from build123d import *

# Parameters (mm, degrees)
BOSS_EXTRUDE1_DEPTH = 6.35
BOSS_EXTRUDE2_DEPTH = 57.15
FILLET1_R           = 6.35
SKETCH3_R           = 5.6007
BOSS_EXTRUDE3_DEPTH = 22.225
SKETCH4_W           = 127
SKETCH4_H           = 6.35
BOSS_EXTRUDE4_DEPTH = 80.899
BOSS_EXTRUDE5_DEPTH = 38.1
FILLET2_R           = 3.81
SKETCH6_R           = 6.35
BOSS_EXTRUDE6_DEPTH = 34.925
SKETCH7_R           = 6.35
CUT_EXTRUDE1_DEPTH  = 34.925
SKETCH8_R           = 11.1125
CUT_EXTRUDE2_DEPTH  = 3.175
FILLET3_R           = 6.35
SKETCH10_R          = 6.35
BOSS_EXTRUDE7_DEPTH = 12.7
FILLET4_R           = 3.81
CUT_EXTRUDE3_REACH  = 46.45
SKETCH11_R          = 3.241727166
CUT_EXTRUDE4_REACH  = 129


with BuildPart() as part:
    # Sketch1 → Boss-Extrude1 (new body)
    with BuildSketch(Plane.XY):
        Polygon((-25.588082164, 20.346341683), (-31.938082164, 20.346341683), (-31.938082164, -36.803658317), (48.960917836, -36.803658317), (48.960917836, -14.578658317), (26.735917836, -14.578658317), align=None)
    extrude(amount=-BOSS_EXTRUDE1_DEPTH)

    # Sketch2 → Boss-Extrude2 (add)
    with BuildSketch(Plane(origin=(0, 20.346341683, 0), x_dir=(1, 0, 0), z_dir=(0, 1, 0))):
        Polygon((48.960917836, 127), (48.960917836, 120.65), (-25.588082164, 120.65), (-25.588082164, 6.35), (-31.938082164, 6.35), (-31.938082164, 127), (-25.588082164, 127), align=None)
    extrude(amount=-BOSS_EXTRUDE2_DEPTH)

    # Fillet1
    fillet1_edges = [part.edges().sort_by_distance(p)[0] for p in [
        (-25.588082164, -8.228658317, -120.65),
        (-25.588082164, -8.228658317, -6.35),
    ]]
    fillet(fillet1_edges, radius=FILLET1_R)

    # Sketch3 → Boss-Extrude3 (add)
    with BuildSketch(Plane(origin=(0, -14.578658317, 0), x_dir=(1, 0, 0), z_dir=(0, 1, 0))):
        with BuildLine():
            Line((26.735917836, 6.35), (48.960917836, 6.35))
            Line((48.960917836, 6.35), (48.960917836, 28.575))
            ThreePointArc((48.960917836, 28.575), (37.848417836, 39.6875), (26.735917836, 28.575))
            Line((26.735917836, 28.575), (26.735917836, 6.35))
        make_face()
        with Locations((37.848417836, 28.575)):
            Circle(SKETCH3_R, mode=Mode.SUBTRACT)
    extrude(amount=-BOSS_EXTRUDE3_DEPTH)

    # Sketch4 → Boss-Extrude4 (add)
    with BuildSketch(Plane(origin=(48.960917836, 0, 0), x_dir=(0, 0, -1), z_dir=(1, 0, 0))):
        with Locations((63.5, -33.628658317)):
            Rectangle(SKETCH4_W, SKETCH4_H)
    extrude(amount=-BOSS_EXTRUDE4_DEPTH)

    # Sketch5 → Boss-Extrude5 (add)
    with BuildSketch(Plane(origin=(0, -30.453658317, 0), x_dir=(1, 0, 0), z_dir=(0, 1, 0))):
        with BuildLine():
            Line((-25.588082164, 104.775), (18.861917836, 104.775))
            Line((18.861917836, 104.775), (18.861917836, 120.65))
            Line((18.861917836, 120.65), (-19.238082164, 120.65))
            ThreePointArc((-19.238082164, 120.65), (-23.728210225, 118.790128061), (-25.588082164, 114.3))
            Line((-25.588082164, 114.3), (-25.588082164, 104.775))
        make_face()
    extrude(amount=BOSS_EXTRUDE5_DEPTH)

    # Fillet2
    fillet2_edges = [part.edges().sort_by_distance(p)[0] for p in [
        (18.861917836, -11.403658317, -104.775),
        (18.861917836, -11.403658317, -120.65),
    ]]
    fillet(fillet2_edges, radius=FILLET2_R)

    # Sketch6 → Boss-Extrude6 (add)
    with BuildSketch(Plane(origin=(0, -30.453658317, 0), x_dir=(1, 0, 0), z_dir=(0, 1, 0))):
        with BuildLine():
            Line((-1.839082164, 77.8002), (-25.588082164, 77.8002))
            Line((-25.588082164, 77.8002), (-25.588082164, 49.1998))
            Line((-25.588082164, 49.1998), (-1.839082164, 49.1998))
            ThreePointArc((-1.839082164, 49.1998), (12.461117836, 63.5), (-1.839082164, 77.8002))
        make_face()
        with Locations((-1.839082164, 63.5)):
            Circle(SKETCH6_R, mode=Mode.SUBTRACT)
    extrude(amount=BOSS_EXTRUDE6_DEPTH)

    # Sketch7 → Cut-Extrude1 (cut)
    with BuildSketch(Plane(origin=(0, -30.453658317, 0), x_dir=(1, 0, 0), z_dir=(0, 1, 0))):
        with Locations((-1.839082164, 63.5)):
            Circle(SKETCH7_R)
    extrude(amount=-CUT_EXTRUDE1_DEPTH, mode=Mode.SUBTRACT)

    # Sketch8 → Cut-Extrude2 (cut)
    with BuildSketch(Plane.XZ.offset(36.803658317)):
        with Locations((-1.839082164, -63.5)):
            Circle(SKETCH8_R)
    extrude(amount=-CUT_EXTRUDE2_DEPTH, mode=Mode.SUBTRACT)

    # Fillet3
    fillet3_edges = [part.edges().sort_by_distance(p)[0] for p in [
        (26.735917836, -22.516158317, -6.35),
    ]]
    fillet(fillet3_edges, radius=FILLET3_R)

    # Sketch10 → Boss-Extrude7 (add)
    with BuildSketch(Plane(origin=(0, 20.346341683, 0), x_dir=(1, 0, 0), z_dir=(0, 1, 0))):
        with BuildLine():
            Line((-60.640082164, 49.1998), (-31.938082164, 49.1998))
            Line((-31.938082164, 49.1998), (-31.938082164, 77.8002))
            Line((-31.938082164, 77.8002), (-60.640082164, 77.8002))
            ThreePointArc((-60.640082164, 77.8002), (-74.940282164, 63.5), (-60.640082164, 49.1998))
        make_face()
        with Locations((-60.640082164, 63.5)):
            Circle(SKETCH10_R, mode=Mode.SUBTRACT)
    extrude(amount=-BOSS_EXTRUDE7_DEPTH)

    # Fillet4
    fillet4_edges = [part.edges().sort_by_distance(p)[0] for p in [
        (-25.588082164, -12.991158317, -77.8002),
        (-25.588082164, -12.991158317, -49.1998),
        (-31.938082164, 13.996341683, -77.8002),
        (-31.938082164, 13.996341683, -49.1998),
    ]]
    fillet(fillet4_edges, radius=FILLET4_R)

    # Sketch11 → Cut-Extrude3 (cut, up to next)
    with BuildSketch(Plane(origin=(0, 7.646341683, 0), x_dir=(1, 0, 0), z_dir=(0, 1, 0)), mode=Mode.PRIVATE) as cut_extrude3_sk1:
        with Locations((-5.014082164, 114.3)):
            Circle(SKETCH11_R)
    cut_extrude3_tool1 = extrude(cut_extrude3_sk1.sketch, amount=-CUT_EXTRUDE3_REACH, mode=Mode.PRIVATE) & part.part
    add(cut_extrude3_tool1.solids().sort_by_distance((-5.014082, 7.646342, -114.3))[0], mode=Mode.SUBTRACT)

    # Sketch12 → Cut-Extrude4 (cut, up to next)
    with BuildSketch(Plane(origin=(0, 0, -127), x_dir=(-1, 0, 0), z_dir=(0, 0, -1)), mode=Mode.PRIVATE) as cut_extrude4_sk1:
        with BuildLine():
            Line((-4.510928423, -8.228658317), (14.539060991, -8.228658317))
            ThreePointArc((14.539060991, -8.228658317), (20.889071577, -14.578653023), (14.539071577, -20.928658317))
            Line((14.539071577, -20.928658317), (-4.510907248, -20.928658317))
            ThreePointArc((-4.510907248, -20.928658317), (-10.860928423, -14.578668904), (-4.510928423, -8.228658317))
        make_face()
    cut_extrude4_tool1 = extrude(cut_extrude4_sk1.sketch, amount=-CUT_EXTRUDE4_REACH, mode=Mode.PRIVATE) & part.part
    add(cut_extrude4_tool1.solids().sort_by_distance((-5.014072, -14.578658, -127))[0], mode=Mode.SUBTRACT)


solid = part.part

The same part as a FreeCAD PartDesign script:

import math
import FreeCAD as App
import Part
import Sketcher

V = App.Vector
Q = App.Units.Quantity


def edges_at(feature, points):
    """Names of the edges that pass closest to the given points."""
    edges = feature.Shape.Edges
    near = lambda p: min(range(len(edges)), key=lambda i: edges[i].distToShape(Part.Vertex(*p))[0])
    return sorted({f"Edge{near(p) + 1}" for p in points})

doc = App.newDocument("Part")
body = doc.addObject("PartDesign::Body", "Body")

# Sketch on XY plane
sketch1 = doc.addObject("Sketcher::SketchObject", "Sketch")
body.addObject(sketch1)
sketch1.AttachmentSupport = (doc.XY_Plane, [""])
sketch1.MapMode = "FlatFace"
sketch1.addGeometry([
    Part.LineSegment(V(-25.588082, 20.346342, 0), V(-31.938082, 20.346342, 0)),  # 0
    Part.LineSegment(V(-31.938082, 20.346342, 0), V(-31.938082, -36.803658, 0)),  # 1
    Part.LineSegment(V(-31.938082, -36.803658, 0), V(48.960918, -36.803658, 0)),  # 2
    Part.LineSegment(V(48.960918, -36.803658, 0), V(48.960918, -14.578658, 0)),  # 3
    Part.LineSegment(V(48.960918, -14.578658, 0), V(26.735918, -14.578658, 0)),  # 4
    Part.LineSegment(V(26.735918, -14.578658, 0), V(-25.588082, 20.346342, 0)),  # 5
], False)
sketch1.addConstraint([
    Sketcher.Constraint("Coincident", 0, 2, 1, 1),
    Sketcher.Constraint("Coincident", 1, 2, 2, 1),
    Sketcher.Constraint("Coincident", 2, 2, 3, 1),
    Sketcher.Constraint("Coincident", 3, 2, 4, 1),
    Sketcher.Constraint("Coincident", 4, 2, 5, 1),
    Sketcher.Constraint("Coincident", 5, 2, 0, 1),
    Sketcher.Constraint("Horizontal", 0),
    Sketcher.Constraint("Vertical", 1),
    Sketcher.Constraint("Horizontal", 2),
    Sketcher.Constraint("Vertical", 3),
    Sketcher.Constraint("Horizontal", 4),
    Sketcher.Constraint("Equal", 4, 3),
    Sketcher.Constraint("DistanceX", 0, 2, 0, 1, Q("0.25 in")),
    Sketcher.Constraint("DistanceY", 1, 2, 1, 1, Q("2.25 in")),
    Sketcher.Constraint("DistanceX", 2, 1, 2, 2, Q("3.185 in")),
    Sketcher.Constraint("DistanceX", 4, 2, 4, 1, Q("0.875 in")),
    Sketcher.Constraint("DistanceY", -1, 1, 0, 2, Q("20.346342 mm")),
    Sketcher.Constraint("DistanceX", 0, 2, -1, 1, Q("31.938082 mm")),
])
pad1 = doc.addObject("PartDesign::Pad", "Pad")
body.addObject(pad1)
pad1.Profile = sketch1
pad1.Length = Q("0.25 in")
pad1.Reversed = True

# Sketch on XZ plane
sketch2 = doc.addObject("Sketcher::SketchObject", "Sketch001")
body.addObject(sketch2)
sketch2.AttachmentSupport = (doc.XZ_Plane, [""])
sketch2.MapMode = "FlatFace"
sketch2.AttachmentOffset = App.Placement(V(0, 0, -20.346342), App.Rotation())
sketch2.addGeometry([
    Part.LineSegment(V(48.960918, -120.65, 0), V(48.960918, -127, 0)),  # 0
    Part.LineSegment(V(48.960918, -127, 0), V(-31.938082, -127, 0)),  # 1
    Part.LineSegment(V(-31.938082, -127, 0), V(-31.938082, -6.35, 0)),  # 2
    Part.LineSegment(V(-31.938082, -6.35, 0), V(-25.588082, -6.35, 0)),  # 3
    Part.LineSegment(V(-25.588082, -6.35, 0), V(-25.588082, -120.65, 0)),  # 4
    Part.LineSegment(V(-25.588082, -120.65, 0), V(48.960918, -120.65, 0)),  # 5
], False)
sketch2.addConstraint([
    Sketcher.Constraint("Coincident", 0, 2, 1, 1),
    Sketcher.Constraint("Coincident", 1, 2, 2, 1),
    Sketcher.Constraint("Coincident", 2, 2, 3, 1),
    Sketcher.Constraint("Coincident", 3, 2, 4, 1),
    Sketcher.Constraint("Coincident", 4, 2, 5, 1),
    Sketcher.Constraint("Coincident", 5, 2, 0, 1),
    Sketcher.Constraint("Vertical", 0),
    Sketcher.Constraint("Horizontal", 1),
    Sketcher.Constraint("Vertical", 2),
    Sketcher.Constraint("Horizontal", 3),
    Sketcher.Constraint("Vertical", 4),
    Sketcher.Constraint("Horizontal", 5),
    Sketcher.Constraint("Equal", 3, 0),
    Sketcher.Constraint("DistanceY", 4, 2, 4, 1, Q("4.5 in")),
    Sketcher.Constraint("DistanceY", 0, 2, -1, 1, Q("5 in")),
    Sketcher.Constraint("DistanceX", 3, 1, 3, 2, Q("0.25 in")),
    Sketcher.Constraint("DistanceX", 1, 2, 1, 1, Q("3.185 in")),
    Sketcher.Constraint("DistanceX", -1, 1, 0, 2, Q("48.960918 mm")),
])
pad2 = doc.addObject("PartDesign::Pad", "Pad001")
body.addObject(pad2)
pad2.Profile = sketch2
pad2.Length = Q("2.25 in")
doc.recompute()

fillet = doc.addObject("PartDesign::Fillet", "Fillet")
body.addObject(fillet)
fillet.Base = (pad2, edges_at(pad2, [(-25.588, -8.229, -120.65), (-25.588, -8.229, -6.35)]))
fillet.Radius = Q("0.25 in")

# Sketch on XZ plane
sketch3 = doc.addObject("Sketcher::SketchObject", "Sketch002")
body.addObject(sketch3)
sketch3.AttachmentSupport = (doc.XZ_Plane, [""])
sketch3.MapMode = "FlatFace"
sketch3.AttachmentOffset = App.Placement(V(0, 0, 14.578658), App.Rotation())
sketch3.addGeometry([
    Part.LineSegment(V(26.735918, -6.35, 0), V(48.960918, -6.35, 0)),  # 0
    Part.LineSegment(V(48.960918, -6.35, 0), V(48.960918, -28.575, 0)),  # 1
    Part.ArcOfCircle(Part.Circle(V(37.848418, -28.575, 0), V(0, 0, 1), 11.1125), math.radians(180), math.radians(360)),  # 2
    Part.LineSegment(V(26.735918, -28.575, 0), V(26.735918, -6.35, 0)),  # 3
    Part.Circle(V(37.848418, -28.575, 0), V(0, 0, 1), 5.6007),  # 4
], False)
sketch3.addConstraint([
    Sketcher.Constraint("Coincident", 0, 2, 1, 1),
    Sketcher.Constraint("Tangent", 1, 2, 2, 2),
    Sketcher.Constraint("Tangent", 2, 1, 3, 1),
    Sketcher.Constraint("Coincident", 3, 2, 0, 1),
    Sketcher.Constraint("Horizontal", 0),
    Sketcher.Constraint("Vertical", 1),
    Sketcher.Constraint("Vertical", 3),
    Sketcher.Constraint("Coincident", 4, 3, 2, 3),
    Sketcher.Constraint("Equal", 0, 1),
    Sketcher.Constraint("Diameter", 4, Q("0.441 in")),
    Sketcher.Constraint("Radius", 2, Q("0.4375 in")),
    Sketcher.Constraint("DistanceY", 0, 2, -1, 1, Q("0.25 in")),
    Sketcher.Constraint("DistanceX", -1, 1, 2, 3, Q("37.848418 mm")),
])
pad3 = doc.addObject("PartDesign::Pad", "Pad002")
body.addObject(pad3)
pad3.Profile = sketch3
pad3.Length = Q("0.875 in")

# Sketch on YZ plane
sketch4 = doc.addObject("Sketcher::SketchObject", "Sketch003")
body.addObject(sketch4)
sketch4.AttachmentSupport = (doc.YZ_Plane, [""])
sketch4.MapMode = "FlatFace"
sketch4.AttachmentOffset = App.Placement(V(0, 0, 48.960918), App.Rotation())
sketch4.addGeometry([
    Part.LineSegment(V(-30.453658, 0, 0), V(-36.803658, 0, 0)),
    Part.LineSegment(V(-36.803658, 0, 0), V(-36.803658, -127, 0)),
    Part.LineSegment(V(-36.803658, -127, 0), V(-30.453658, -127, 0)),
    Part.LineSegment(V(-30.453658, -127, 0), V(-30.453658, 0, 0)),
], False)
sketch4.addConstraint([
    Sketcher.Constraint("Coincident", 0, 2, 1, 1),
    Sketcher.Constraint("Coincident", 1, 2, 2, 1),
    Sketcher.Constraint("Coincident", 2, 2, 3, 1),
    Sketcher.Constraint("Coincident", 3, 2, 0, 1),
    Sketcher.Constraint("Horizontal", 0),
    Sketcher.Constraint("Vertical", 1),
    Sketcher.Constraint("Horizontal", 2),
    Sketcher.Constraint("Vertical", 3),
    Sketcher.Constraint("PointOnObject", 0, 2, -1),
    Sketcher.Constraint("DistanceY", 1, 2, 1, 1, Q("5 in")),
    Sketcher.Constraint("DistanceX", 0, 2, 0, 1, Q("0.25 in")),
    Sketcher.Constraint("DistanceX", 0, 2, -1, 1, Q("36.803658 mm")),
])
pad4 = doc.addObject("PartDesign::Pad", "Pad003")
body.addObject(pad4)
pad4.Profile = sketch4
pad4.Length = Q("3.185 in")
pad4.Reversed = True

# Sketch on XZ plane
sketch5 = doc.addObject("Sketcher::SketchObject", "Sketch004")
body.addObject(sketch5)
sketch5.AttachmentSupport = (doc.XZ_Plane, [""])
sketch5.MapMode = "FlatFace"
sketch5.AttachmentOffset = App.Placement(V(0, 0, 30.453658), App.Rotation())
sketch5.addGeometry([
    Part.LineSegment(V(-25.588082, -104.775, 0), V(18.861918, -104.775, 0)),  # 0
    Part.LineSegment(V(18.861918, -104.775, 0), V(18.861918, -120.65, 0)),  # 1
    Part.LineSegment(V(18.861918, -120.65, 0), V(-19.238082, -120.65, 0)),  # 2
    Part.ArcOfCircle(Part.Circle(V(-19.238082, -114.3, 0), V(0, 0, 1), 6.35), math.radians(180), math.radians(270)),  # 3
    Part.LineSegment(V(-25.588082, -114.3, 0), V(-25.588082, -104.775, 0)),  # 4
], False)
sketch5.addConstraint([
    Sketcher.Constraint("Coincident", 0, 2, 1, 1),
    Sketcher.Constraint("Coincident", 1, 2, 2, 1),
    Sketcher.Constraint("Tangent", 2, 2, 3, 2),
    Sketcher.Constraint("Tangent", 3, 1, 4, 1),
    Sketcher.Constraint("Coincident", 4, 2, 0, 1),
    Sketcher.Constraint("Horizontal", 0),
    Sketcher.Constraint("Vertical", 1),
    Sketcher.Constraint("Horizontal", 2),
    Sketcher.Constraint("Vertical", 4),
    Sketcher.Constraint("Radius", 3, Q("0.25 in")),
    Sketcher.Constraint("DistanceX", 2, 2, 2, 1, Q("1.5 in")),
    Sketcher.Constraint("DistanceY", 3, 3, -1, 1, Q("4.5 in")),
    Sketcher.Constraint("DistanceY", 1, 2, 1, 1, Q("0.625 in")),
    Sketcher.Constraint("DistanceX", 3, 3, -1, 1, Q("19.238082 mm")),
])
pad5 = doc.addObject("PartDesign::Pad", "Pad004")
body.addObject(pad5)
pad5.Profile = sketch5
pad5.Length = Q("1.5 in")
pad5.Reversed = True
doc.recompute()

fillet2 = doc.addObject("PartDesign::Fillet", "Fillet001")
body.addObject(fillet2)
fillet2.Base = (pad5, edges_at(pad5, [(18.862, -11.404, -104.775), (18.862, -11.404, -120.65)]))
fillet2.Radius = Q("0.15 in")

# Sketch on XZ plane
sketch6 = doc.addObject("Sketcher::SketchObject", "Sketch005")
body.addObject(sketch6)
sketch6.AttachmentSupport = (doc.XZ_Plane, [""])
sketch6.MapMode = "FlatFace"
sketch6.AttachmentOffset = App.Placement(V(0, 0, 30.453658), App.Rotation())
sketch6.addGeometry([
    Part.LineSegment(V(-1.839082, -77.8002, 0), V(-25.588082, -77.8002, 0)),  # 0
    Part.LineSegment(V(-25.588082, -77.8002, 0), V(-25.588082, -49.1998, 0)),  # 1
    Part.LineSegment(V(-25.588082, -49.1998, 0), V(-1.839082, -49.1998, 0)),  # 2
    Part.ArcOfCircle(Part.Circle(V(-1.839082, -63.5, 0), V(0, 0, 1), 14.3002), math.radians(-90), math.radians(90)),  # 3
    Part.Circle(V(-1.839082, -63.5, 0), V(0, 0, 1), 6.35),  # 4
], False)
sketch6.addConstraint([
    Sketcher.Constraint("Coincident", 0, 2, 1, 1),
    Sketcher.Constraint("Coincident", 1, 2, 2, 1),
    Sketcher.Constraint("Tangent", 2, 2, 3, 2),
    Sketcher.Constraint("Tangent", 3, 1, 0, 1),
    Sketcher.Constraint("Horizontal", 0),
    Sketcher.Constraint("Vertical", 1),
    Sketcher.Constraint("Horizontal", 2),
    Sketcher.Constraint("Coincident", 4, 3, 3, 3),
    Sketcher.Constraint("Diameter", 4, Q("0.5 in")),
    Sketcher.Constraint("Radius", 3, Q("0.563 in")),
    Sketcher.Constraint("DistanceY", 3, 3, -1, 1, Q("2.5 in")),
    Sketcher.Constraint("DistanceX", 0, 2, 0, 1, Q("0.935 in")),
    Sketcher.Constraint("DistanceX", 3, 3, -1, 1, Q("1.839082 mm")),
])
pad6 = doc.addObject("PartDesign::Pad", "Pad005")
body.addObject(pad6)
pad6.Profile = sketch6
pad6.Length = Q("1.375 in")
pad6.Reversed = True

# Sketch on XZ plane
sketch7 = doc.addObject("Sketcher::SketchObject", "Sketch006")
body.addObject(sketch7)
sketch7.AttachmentSupport = (doc.XZ_Plane, [""])
sketch7.MapMode = "FlatFace"
sketch7.AttachmentOffset = App.Placement(V(0, 0, 30.453658), App.Rotation())
sketch7.addGeometry(Part.Circle(V(-1.839082, -63.5, 0), V(0, 0, 1), 6.35), False)
sketch7.addConstraint([
    Sketcher.Constraint("Diameter", 0, Q("0.5 in")),
    Sketcher.Constraint("DistanceY", 0, 3, -1, 1, Q("2.5 in")),
    Sketcher.Constraint("DistanceX", 0, 3, -1, 1, Q("1.839082 mm")),
])
pocket1 = doc.addObject("PartDesign::Pocket", "Pocket")
body.addObject(pocket1)
pocket1.Profile = sketch7
pocket1.Length = Q("1.375 in")
pocket1.Reversed = True

# Sketch on XZ plane
sketch8 = doc.addObject("Sketcher::SketchObject", "Sketch007")
body.addObject(sketch8)
sketch8.AttachmentSupport = (doc.XZ_Plane, [""])
sketch8.MapMode = "FlatFace"
sketch8.AttachmentOffset = App.Placement(V(0, 0, 36.803658), App.Rotation())
sketch8.addGeometry(Part.Circle(V(-1.839082, -63.5, 0), V(0, 0, 1), 11.1125), False)
sketch8.addConstraint([
    Sketcher.Constraint("Diameter", 0, Q("0.875 in")),
    Sketcher.Constraint("DistanceY", 0, 3, -1, 1, Q("2.5 in")),
    Sketcher.Constraint("DistanceX", 0, 3, -1, 1, Q("1.839082 mm")),
])
pocket2 = doc.addObject("PartDesign::Pocket", "Pocket001")
body.addObject(pocket2)
pocket2.Profile = sketch8
pocket2.Length = Q("0.125 in")
doc.recompute()

fillet3 = doc.addObject("PartDesign::Fillet", "Fillet002")
body.addObject(fillet3)
fillet3.Base = (pocket2, edges_at(pocket2, [(26.736, -22.516, -6.35)]))
fillet3.Radius = Q("0.25 in")

# Sketch on XZ plane
sketch9 = doc.addObject("Sketcher::SketchObject", "Sketch008")
body.addObject(sketch9)
sketch9.AttachmentSupport = (doc.XZ_Plane, [""])
sketch9.MapMode = "FlatFace"
sketch9.AttachmentOffset = App.Placement(V(0, 0, -20.346342), App.Rotation())
sketch9.addGeometry([
    Part.LineSegment(V(-60.640082, -49.1998, 0), V(-31.938082, -49.1998, 0)),  # 0
    Part.LineSegment(V(-31.938082, -49.1998, 0), V(-31.938082, -77.8002, 0)),  # 1
    Part.LineSegment(V(-31.938082, -77.8002, 0), V(-60.640082, -77.8002, 0)),  # 2
    Part.ArcOfCircle(Part.Circle(V(-60.640082, -63.5, 0), V(0, 0, 1), 14.3002), math.radians(90), math.radians(270)),  # 3
    Part.Circle(V(-60.640082, -63.5, 0), V(0, 0, 1), 6.35),  # 4
], False)
sketch9.addConstraint([
    Sketcher.Constraint("Coincident", 0, 2, 1, 1),
    Sketcher.Constraint("Coincident", 1, 2, 2, 1),
    Sketcher.Constraint("Tangent", 2, 2, 3, 2),
    Sketcher.Constraint("Tangent", 3, 1, 0, 1),
    Sketcher.Constraint("Horizontal", 0),
    Sketcher.Constraint("Vertical", 1),
    Sketcher.Constraint("Horizontal", 2),
    Sketcher.Constraint("Coincident", 4, 3, 3, 3),
    Sketcher.Constraint("Diameter", 4, Q("0.5 in")),
    Sketcher.Constraint("Radius", 3, Q("0.563 in")),
    Sketcher.Constraint("DistanceX", 0, 1, 0, 2, Q("1.13 in")),
    Sketcher.Constraint("DistanceY", 3, 3, -1, 1, Q("2.5 in")),
    Sketcher.Constraint("DistanceX", 3, 3, -1, 1, Q("60.640082 mm")),
])
pad7 = doc.addObject("PartDesign::Pad", "Pad006")
body.addObject(pad7)
pad7.Profile = sketch9
pad7.Length = Q("0.5 in")
doc.recompute()

fillet4 = doc.addObject("PartDesign::Fillet", "Fillet003")
body.addObject(fillet4)
fillet4.Base = (pad7, edges_at(pad7, [
    (-25.588, -12.991, -77.8),
    (-25.588, -12.991, -49.2),
    (-31.938, 13.996, -77.8),
    (-31.938, 13.996, -49.2),
]))
fillet4.Radius = Q("0.15 in")

# Sketch on XZ plane
sketch10 = doc.addObject("Sketcher::SketchObject", "Sketch009")
body.addObject(sketch10)
sketch10.AttachmentSupport = (doc.XZ_Plane, [""])
sketch10.MapMode = "FlatFace"
sketch10.AttachmentOffset = App.Placement(V(0, 0, -7.646342), App.Rotation())
sketch10.addGeometry(Part.Circle(V(-5.014082, -114.3, 0), V(0, 0, 1), 3.241727), False)
sketch10.addConstraint([
    Sketcher.Constraint("DistanceY", 0, 3, -1, 1, Q("4.5 in")),
    Sketcher.Constraint("Diameter", 0, Q("6.483454 mm")),
    Sketcher.Constraint("DistanceX", 0, 3, -1, 1, Q("5.014082 mm")),
])
pocket3 = doc.addObject("PartDesign::Pocket", "Pocket002")
body.addObject(pocket3)
pocket3.Profile = sketch10
pocket3.Type = "UpToFirst"
pocket3.Reversed = True

# Sketch on XY plane
sketch11 = doc.addObject("Sketcher::SketchObject", "Sketch010")
body.addObject(sketch11)
sketch11.AttachmentSupport = (doc.XY_Plane, [""])
sketch11.MapMode = "FlatFace"
sketch11.AttachmentOffset = App.Placement(V(0, 0, -5 * 25.4), App.Rotation())
sketch11.addGeometry([
    Part.LineSegment(V(-14.539061, -8.228658, 0), V(4.510928, -8.228658, 0)),
    Part.ArcOfCircle(Part.Circle(V(4.510928, -14.578658, 0), V(0, 0, 1), 6.35), math.radians(-90.000191), math.radians(90)),
    Part.LineSegment(V(4.510907, -20.928658, 0), V(-14.539072, -20.928658, 0)),
    Part.ArcOfCircle(Part.Circle(V(-14.539072, -14.578658, 0), V(0, 0, 1), 6.35), math.radians(89.999904), math.radians(270)),
], False)
sketch11.addConstraint([
    Sketcher.Constraint("Tangent", 0, 2, 1, 2),
    Sketcher.Constraint("Coincident", 1, 1, 2, 1),
    Sketcher.Constraint("Tangent", 2, 2, 3, 2),
    Sketcher.Constraint("Tangent", 3, 1, 0, 1),
    Sketcher.Constraint("Horizontal", 0),
    Sketcher.Constraint("Horizontal", 2),
    Sketcher.Constraint("Radius", 1, Q("0.25 in")),
    Sketcher.Constraint("DistanceX", 3, 3, 1, 3, Q("0.75 in")),
    Sketcher.Constraint("DistanceX", 2, 2, 2, 1, Q("19.049979 mm")),
    Sketcher.Constraint("DistanceX", -1, 1, 1, 3, Q("4.510928 mm")),
    Sketcher.Constraint("DistanceY", 1, 3, -1, 1, Q("14.578658 mm")),
])
pocket4 = doc.addObject("PartDesign::Pocket", "Pocket003")
body.addObject(pocket4)
pocket4.Profile = sketch11
pocket4.Length = Q("0.875 in")
pocket4.Reversed = True

doc.recompute()
